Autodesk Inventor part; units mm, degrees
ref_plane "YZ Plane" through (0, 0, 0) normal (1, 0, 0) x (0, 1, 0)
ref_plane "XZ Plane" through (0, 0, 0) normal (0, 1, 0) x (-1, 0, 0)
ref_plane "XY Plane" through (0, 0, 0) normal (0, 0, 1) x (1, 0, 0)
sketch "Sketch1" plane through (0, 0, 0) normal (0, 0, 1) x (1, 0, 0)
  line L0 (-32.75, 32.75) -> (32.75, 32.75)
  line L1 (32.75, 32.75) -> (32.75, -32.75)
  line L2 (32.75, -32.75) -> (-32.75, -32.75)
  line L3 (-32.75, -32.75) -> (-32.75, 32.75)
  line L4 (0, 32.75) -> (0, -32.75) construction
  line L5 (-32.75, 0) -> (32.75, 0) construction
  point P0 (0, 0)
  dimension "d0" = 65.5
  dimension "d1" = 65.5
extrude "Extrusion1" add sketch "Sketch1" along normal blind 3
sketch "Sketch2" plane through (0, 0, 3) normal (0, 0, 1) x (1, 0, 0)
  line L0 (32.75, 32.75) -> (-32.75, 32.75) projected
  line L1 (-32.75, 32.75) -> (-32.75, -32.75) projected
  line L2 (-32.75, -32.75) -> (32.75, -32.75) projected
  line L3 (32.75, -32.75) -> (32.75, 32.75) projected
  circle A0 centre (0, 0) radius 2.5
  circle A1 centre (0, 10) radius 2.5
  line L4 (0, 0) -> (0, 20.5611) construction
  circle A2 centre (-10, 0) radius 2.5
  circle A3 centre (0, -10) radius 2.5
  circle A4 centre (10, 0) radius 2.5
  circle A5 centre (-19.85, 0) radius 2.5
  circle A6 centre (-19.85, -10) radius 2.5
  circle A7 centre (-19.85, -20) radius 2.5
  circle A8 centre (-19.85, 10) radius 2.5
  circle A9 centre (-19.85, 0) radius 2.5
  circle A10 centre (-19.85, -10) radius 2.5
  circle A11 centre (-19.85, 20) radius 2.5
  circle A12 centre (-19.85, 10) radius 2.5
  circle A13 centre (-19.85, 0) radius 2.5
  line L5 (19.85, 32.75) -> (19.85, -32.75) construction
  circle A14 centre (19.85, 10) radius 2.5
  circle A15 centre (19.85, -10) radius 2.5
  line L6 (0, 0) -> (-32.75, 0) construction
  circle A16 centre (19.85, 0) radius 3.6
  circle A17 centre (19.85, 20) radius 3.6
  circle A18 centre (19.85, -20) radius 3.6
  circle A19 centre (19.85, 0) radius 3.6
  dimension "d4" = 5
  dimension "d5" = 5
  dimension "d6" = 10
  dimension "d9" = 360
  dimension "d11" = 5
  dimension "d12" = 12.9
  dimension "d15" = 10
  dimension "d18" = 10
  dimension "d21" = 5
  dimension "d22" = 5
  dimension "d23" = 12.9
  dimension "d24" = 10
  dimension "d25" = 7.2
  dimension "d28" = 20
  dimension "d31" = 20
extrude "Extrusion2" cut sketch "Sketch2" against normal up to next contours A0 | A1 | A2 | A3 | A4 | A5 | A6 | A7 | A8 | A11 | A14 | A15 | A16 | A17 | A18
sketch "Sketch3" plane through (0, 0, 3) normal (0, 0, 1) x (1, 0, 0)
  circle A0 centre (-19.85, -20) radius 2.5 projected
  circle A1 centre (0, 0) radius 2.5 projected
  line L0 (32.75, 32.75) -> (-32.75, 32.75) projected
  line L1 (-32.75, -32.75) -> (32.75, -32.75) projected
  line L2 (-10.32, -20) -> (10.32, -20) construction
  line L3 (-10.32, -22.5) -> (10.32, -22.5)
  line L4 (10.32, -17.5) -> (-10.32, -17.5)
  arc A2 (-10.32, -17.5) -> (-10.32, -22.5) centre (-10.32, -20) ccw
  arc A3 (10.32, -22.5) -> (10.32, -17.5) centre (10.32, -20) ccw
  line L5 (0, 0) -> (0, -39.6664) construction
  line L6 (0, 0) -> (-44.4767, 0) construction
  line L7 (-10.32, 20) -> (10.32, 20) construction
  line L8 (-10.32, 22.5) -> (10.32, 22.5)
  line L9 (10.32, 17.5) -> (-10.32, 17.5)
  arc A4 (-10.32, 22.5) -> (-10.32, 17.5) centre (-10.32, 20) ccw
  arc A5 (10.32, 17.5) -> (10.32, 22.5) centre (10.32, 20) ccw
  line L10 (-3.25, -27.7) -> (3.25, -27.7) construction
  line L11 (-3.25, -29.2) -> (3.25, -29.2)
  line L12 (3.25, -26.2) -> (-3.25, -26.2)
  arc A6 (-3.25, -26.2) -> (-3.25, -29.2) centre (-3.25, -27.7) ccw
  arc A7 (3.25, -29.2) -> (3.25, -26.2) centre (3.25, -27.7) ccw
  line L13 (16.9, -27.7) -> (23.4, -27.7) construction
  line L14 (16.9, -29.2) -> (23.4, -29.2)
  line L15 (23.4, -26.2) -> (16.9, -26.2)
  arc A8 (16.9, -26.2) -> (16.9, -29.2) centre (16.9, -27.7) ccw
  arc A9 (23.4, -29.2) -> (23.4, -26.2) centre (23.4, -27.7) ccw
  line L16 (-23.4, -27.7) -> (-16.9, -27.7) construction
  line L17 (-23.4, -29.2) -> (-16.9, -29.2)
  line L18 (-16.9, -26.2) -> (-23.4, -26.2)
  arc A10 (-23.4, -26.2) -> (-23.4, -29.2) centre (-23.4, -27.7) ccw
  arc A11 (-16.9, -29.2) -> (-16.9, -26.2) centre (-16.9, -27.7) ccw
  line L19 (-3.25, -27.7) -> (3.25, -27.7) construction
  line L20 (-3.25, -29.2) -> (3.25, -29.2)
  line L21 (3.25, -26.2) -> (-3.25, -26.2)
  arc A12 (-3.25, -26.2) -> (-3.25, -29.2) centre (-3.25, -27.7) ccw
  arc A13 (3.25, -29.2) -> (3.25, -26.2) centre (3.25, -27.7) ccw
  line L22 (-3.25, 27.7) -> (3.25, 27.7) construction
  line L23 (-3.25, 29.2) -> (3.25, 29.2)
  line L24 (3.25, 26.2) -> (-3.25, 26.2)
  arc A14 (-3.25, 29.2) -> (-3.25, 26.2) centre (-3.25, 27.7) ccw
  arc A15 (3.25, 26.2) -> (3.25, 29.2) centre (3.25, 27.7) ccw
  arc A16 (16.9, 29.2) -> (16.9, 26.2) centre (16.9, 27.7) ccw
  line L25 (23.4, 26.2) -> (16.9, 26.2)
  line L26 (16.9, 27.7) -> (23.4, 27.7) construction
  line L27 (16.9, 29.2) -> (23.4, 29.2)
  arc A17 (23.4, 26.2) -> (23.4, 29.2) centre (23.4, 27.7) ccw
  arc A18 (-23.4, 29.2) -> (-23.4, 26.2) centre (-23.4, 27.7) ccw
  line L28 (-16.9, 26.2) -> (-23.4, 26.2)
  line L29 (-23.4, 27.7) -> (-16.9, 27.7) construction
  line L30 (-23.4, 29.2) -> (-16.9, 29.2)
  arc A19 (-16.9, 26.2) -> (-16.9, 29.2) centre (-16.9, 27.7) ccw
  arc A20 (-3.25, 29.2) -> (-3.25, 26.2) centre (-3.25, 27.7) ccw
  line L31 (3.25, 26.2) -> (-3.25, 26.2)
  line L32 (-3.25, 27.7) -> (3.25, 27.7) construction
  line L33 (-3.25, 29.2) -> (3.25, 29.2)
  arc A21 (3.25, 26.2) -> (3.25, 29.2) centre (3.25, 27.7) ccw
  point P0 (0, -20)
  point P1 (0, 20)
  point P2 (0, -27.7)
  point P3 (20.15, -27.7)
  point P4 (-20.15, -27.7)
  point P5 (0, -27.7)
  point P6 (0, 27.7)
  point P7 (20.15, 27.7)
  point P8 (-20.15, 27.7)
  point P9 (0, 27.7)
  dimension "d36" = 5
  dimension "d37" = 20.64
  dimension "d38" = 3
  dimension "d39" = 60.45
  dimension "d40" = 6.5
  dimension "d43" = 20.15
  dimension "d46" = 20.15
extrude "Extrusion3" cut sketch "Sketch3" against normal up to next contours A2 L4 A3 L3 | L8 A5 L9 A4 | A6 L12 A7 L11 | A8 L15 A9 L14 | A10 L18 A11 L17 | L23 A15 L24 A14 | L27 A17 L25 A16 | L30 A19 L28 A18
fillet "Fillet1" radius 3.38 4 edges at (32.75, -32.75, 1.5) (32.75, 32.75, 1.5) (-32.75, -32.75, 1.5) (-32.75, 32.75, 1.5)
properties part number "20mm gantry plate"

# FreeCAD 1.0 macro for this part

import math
import FreeCAD as App
import Part
import Sketcher

V = App.Vector


def edges_at(feature, points):
    """Names of the edges that pass closest to the given points."""
    edges = feature.Shape.Edges
    near = lambda p: min(range(len(edges)), key=lambda i: edges[i].distToShape(Part.Vertex(*p))[0])
    return sorted({f"Edge{near(p) + 1}" for p in points})

doc = App.newDocument("Part")
body = doc.addObject("PartDesign::Body", "Body")

# Sketch on XY plane
sketch1 = doc.addObject("Sketcher::SketchObject", "Sketch")
body.addObject(sketch1)
sketch1.AttachmentSupport = (doc.XY_Plane, [""])
sketch1.MapMode = "FlatFace"
sketch1.addGeometry(Part.LineSegment(V(33, 33, 0), V(-33, 33, 0)), False)
sketch1.addGeometry(Part.LineSegment(V(-33, 33, 0), V(-33, -33, 0)), False)
sketch1.addGeometry(Part.LineSegment(V(-33, -33, 0), V(33, -33, 0)), False)
sketch1.addGeometry(Part.LineSegment(V(33, -33, 0), V(33, 33, 0)), False)
sketch1.addConstraint(Sketcher.Constraint("Coincident", 0, 2, 1, 1))
sketch1.addConstraint(Sketcher.Constraint("Coincident", 1, 2, 2, 1))
sketch1.addConstraint(Sketcher.Constraint("Coincident", 2, 2, 3, 1))
sketch1.addConstraint(Sketcher.Constraint("Coincident", 3, 2, 0, 1))
sketch1.addConstraint(Sketcher.Constraint("Horizontal", 0))
sketch1.addConstraint(Sketcher.Constraint("Vertical", 1))
sketch1.addConstraint(Sketcher.Constraint("Horizontal", 2))
sketch1.addConstraint(Sketcher.Constraint("Vertical", 3))
sketch1.addConstraint(Sketcher.Constraint("Symmetric", 0, 2, 2, 2, -1, 1))
sketch1.addConstraint(Sketcher.Constraint("Equal", 2, 1))
sketch1.addConstraint(Sketcher.Constraint("DistanceX", 0, 2, 0, 1, 65.5))
pad1 = doc.addObject("PartDesign::Pad", "Pad")
body.addObject(pad1)
pad1.Profile = sketch1
pad1.Length = 3

# Sketch on XY plane
sketch2 = doc.addObject("Sketcher::SketchObject", "Sketch001")
body.addObject(sketch2)
sketch2.AttachmentSupport = (doc.XY_Plane, [""])
sketch2.MapMode = "FlatFace"
sketch2.AttachmentOffset = App.Placement(V(0, 0, 3), App.Rotation())
sketch2.addGeometry(Part.Circle(V(0, 0, 0), V(0, 0, 1), 2.5), False)
sketch2.addGeometry(Part.Circle(V(0, 10, 0), V(0, 0, 1), 2.5), False)
sketch2.addGeometry(Part.Circle(V(-10, 0, 0), V(0, 0, 1), 2.5), False)
sketch2.addGeometry(Part.Circle(V(0, -10, 0), V(0, 0, 1), 2.5), False)
sketch2.addGeometry(Part.Circle(V(10, 0, 0), V(0, 0, 1), 2.5), False)
sketch2.addGeometry(Part.Circle(V(-19.9, 0, 0), V(0, 0, 1), 2.5), False)
sketch2.addGeometry(Part.Circle(V(-19.9, -10, 0), V(0, 0, 1), 2.5), False)
sketch2.addGeometry(Part.Circle(V(-19.9, -20, 0), V(0, 0, 1), 2.5), False)
sketch2.addGeometry(Part.Circle(V(-19.9, 10, 0), V(0, 0, 1), 2.5), False)
sketch2.addGeometry(Part.Circle(V(-19.9, 20, 0), V(0, 0, 1), 2.5), False)
sketch2.addGeometry(Part.Circle(V(19.9, 10, 0), V(0, 0, 1), 2.5), False)
sketch2.addGeometry(Part.Circle(V(19.9, -10, 0), V(0, 0, 1), 2.5), False)
sketch2.addGeometry(Part.Circle(V(19.9, 0, 0), V(0, 0, 1), 3.6), False)
sketch2.addGeometry(Part.Circle(V(19.9, 20, 0), V(0, 0, 1), 3.6), False)
sketch2.addGeometry(Part.Circle(V(19.9, -20, 0), V(0, 0, 1), 3.6), False)
sketch2.addConstraint(Sketcher.Constraint("Coincident", 0, 3, -1, 1))
sketch2.addConstraint(Sketcher.Constraint("Equal", 0, 1))
sketch2.addConstraint(Sketcher.Constraint("Equal", 1, 2))
sketch2.addConstraint(Sketcher.Constraint("Equal", 2, 3))
sketch2.addConstraint(Sketcher.Constraint("Equal", 3, 4))
sketch2.addConstraint(Sketcher.Constraint("Equal", 4, 5))
sketch2.addConstraint(Sketcher.Constraint("Equal", 5, 6))
sketch2.addConstraint(Sketcher.Constraint("Equal", 6, 7))
sketch2.addConstraint(Sketcher.Constraint("Equal", 7, 8))
sketch2.addConstraint(Sketcher.Constraint("Equal", 8, 9))
sketch2.addConstraint(Sketcher.Constraint("Equal", 9, 10))
sketch2.addConstraint(Sketcher.Constraint("Equal", 10, 11))
sketch2.addConstraint(Sketcher.Constraint("Equal", 12, 13))
sketch2.addConstraint(Sketcher.Constraint("Equal", 13, 14))
sketch2.addConstraint(Sketcher.Constraint("Symmetric", 1, 3, 3, 3, -1, 1))
sketch2.addConstraint(Sketcher.Constraint("Symmetric", 2, 3, 4, 3, -1, 1))
sketch2.addConstraint(Sketcher.Constraint("Symmetric", 6, 3, 10, 3, -1, 1))
sketch2.addConstraint(Sketcher.Constraint("Symmetric", 8, 3, 11, 3, -1, 1))
sketch2.addConstraint(Sketcher.Constraint("Symmetric", 5, 3, 12, 3, -1, 1))
sketch2.addConstraint(Sketcher.Constraint("Symmetric", 7, 3, 13, 3, -1, 1))
sketch2.addConstraint(Sketcher.Constraint("Symmetric", 9, 3, 14, 3, -1, 1))
sketch2.addConstraint(Sketcher.Constraint("Symmetric", 8, 3, 10, 3, -2))
sketch2.addConstraint(Sketcher.Constraint("Symmetric", 9, 3, 13, 3, -2))
sketch2.addConstraint(Sketcher.Constraint("PointOnObject", 1, 3, -2))
sketch2.addConstraint(Sketcher.Constraint("PointOnObject", 2, 3, -1))
sketch2.addConstraint(Sketcher.Constraint("PointOnObject", 5, 3, -1))
sketch2.addConstraint(Sketcher.Constraint("Horizontal", 3, 3, 6, 3))
sketch2.addConstraint(Sketcher.Constraint("Vertical", 5, 3, 6, 3))
sketch2.addConstraint(Sketcher.Constraint("Vertical", 6, 3, 7, 3))
sketch2.addConstraint(Sketcher.Constraint("Diameter", 0, 5.0))
sketch2.addConstraint(Sketcher.Constraint("Diameter", 12, 7.2))
sketch2.addConstraint(Sketcher.Constraint("DistanceY", -1, 1, 1, 3, 10.0))
sketch2.addConstraint(Sketcher.Constraint("DistanceX", 2, 3, -1, 1, 10.0))
sketch2.addConstraint(Sketcher.Constraint("DistanceY", 7, 3, -1, 1, 20.0))
sketch2.addConstraint(Sketcher.Constraint("DistanceX", 5, 3, -1, 1, 19.85))
pocket1 = doc.addObject("PartDesign::Pocket", "Pocket")
body.addObject(pocket1)
pocket1.Profile = sketch2
pocket1.Type = "UpToFirst"

# Sketch on XY plane
sketch3 = doc.addObject("Sketcher::SketchObject", "Sketch002")
body.addObject(sketch3)
sketch3.AttachmentSupport = (doc.XY_Plane, [""])
sketch3.MapMode = "FlatFace"
sketch3.AttachmentOffset = App.Placement(V(0, 0, 3), App.Rotation())
sketch3.addGeometry(Part.ArcOfCircle(Part.Circle(V(-10.3, -20, 0), V(0, 0, 1), 2.5), math.radians(90), math.radians(270)), False)
sketch3.addGeometry(Part.LineSegment(V(-10.3, -22.5, 0), V(10.3, -22.5, 0)), False)
sketch3.addGeometry(Part.ArcOfCircle(Part.Circle(V(10.3, -20, 0), V(0, 0, 1), 2.5), math.radians(-90), math.radians(90)), False)
sketch3.addGeometry(Part.LineSegment(V(10.3, -17.5, 0), V(-10.3, -17.5, 0)), False)
sketch3.addGeometry(Part.LineSegment(V(10.3, 22.5, 0), V(-10.3, 22.5, 0)), False)
sketch3.addGeometry(Part.ArcOfCircle(Part.Circle(V(-10.3, 20, 0), V(0, 0, 1), 2.5), math.radians(90), math.radians(270)), False)
sketch3.addGeometry(Part.LineSegment(V(-10.3, 17.5, 0), V(10.3, 17.5, 0)), False)
sketch3.addGeometry(Part.ArcOfCircle(Part.Circle(V(10.3, 20, 0), V(0, 0, 1), 2.5), math.radians(-90), math.radians(90)), False)
sketch3.addGeometry(Part.ArcOfCircle(Part.Circle(V(-3.2, -27.7, 0), V(0, 0, 1), 1.5), math.radians(90), math.radians(270)), False)
sketch3.addGeometry(Part.LineSegment(V(-3.2, -29.2, 0), V(3.2, -29.2, 0)), False)
sketch3.addGeometry(Part.ArcOfCircle(Part.Circle(V(3.2, -27.7, 0), V(0, 0, 1), 1.5), math.radians(-90), math.radians(90)), False)
sketch3.addGeometry(Part.LineSegment(V(3.2, -26.2, 0), V(-3.2, -26.2, 0)), False)
sketch3.addGeometry(Part.ArcOfCircle(Part.Circle(V(16.9, -27.7, 0), V(0, 0, 1), 1.5), math.radians(90), math.radians(270)), False)
sketch3.addGeometry(Part.LineSegment(V(16.9, -29.2, 0), V(23.4, -29.2, 0)), False)
sketch3.addGeometry(Part.ArcOfCircle(Part.Circle(V(23.4, -27.7, 0), V(0, 0, 1), 1.5), math.radians(-90), math.radians(90)), False)
sketch3.addGeometry(Part.LineSegment(V(23.4, -26.2, 0), V(16.9, -26.2, 0)), False)
sketch3.addGeometry(Part.ArcOfCircle(Part.Circle(V(-23.4, -27.7, 0), V(0, 0, 1), 1.5), math.radians(90), math.radians(270)), False)
sketch3.addGeometry(Part.LineSegment(V(-23.4, -29.2, 0), V(-16.9, -29.2, 0)), False)
sketch3.addGeometry(Part.ArcOfCircle(Part.Circle(V(-16.9, -27.7, 0), V(0, 0, 1), 1.5), math.radians(-90), math.radians(90)), False)
sketch3.addGeometry(Part.LineSegment(V(-16.9, -26.2, 0), V(-23.4, -26.2, 0)), False)
sketch3.addGeometry(Part.LineSegment(V(3.2, 29.2, 0), V(-3.2, 29.2, 0)), False)
sketch3.addGeometry(Part.ArcOfCircle(Part.Circle(V(-3.2, 27.7, 0), V(0, 0, 1), 1.5), math.radians(90), math.radians(270)), False)
sketch3.addGeometry(Part.LineSegment(V(-3.2, 26.2, 0), V(3.2, 26.2, 0)), False)
sketch3.addGeometry(Part.ArcOfCircle(Part.Circle(V(3.2, 27.7, 0), V(0, 0, 1), 1.5), math.radians(-90), math.radians(90)), False)
sketch3.addGeometry(Part.LineSegment(V(23.4, 29.2, 0), V(16.9, 29.2, 0)), False)
sketch3.addGeometry(Part.ArcOfCircle(Part.Circle(V(16.9, 27.7, 0), V(0, 0, 1), 1.5), math.radians(90), math.radians(270)), False)
sketch3.addGeometry(Part.LineSegment(V(16.9, 26.2, 0), V(23.4, 26.2, 0)), False)
sketch3.addGeometry(Part.ArcOfCircle(Part.Circle(V(23.4, 27.7, 0), V(0, 0, 1), 1.5), math.radians(-90), math.radians(90)), False)
sketch3.addGeometry(Part.LineSegment(V(-16.9, 29.2, 0), V(-23.4, 29.2, 0)), False)
sketch3.addGeometry(Part.ArcOfCircle(Part.Circle(V(-23.4, 27.7, 0), V(0, 0, 1), 1.5), math.radians(90), math.radians(270)), False)
sketch3.addGeometry(Part.LineSegment(V(-23.4, 26.2, 0), V(-16.9, 26.2, 0)), False)
sketch3.addGeometry(Part.ArcOfCircle(Part.Circle(V(-16.9, 27.7, 0), V(0, 0, 1), 1.5), math.radians(-90), math.radians(90)), False)
sketch3.addConstraint(Sketcher.Constraint("Tangent", 0, 2, 1, 1))
sketch3.addConstraint(Sketcher.Constraint("Tangent", 1, 2, 2, 1))
sketch3.addConstraint(Sketcher.Constraint("Tangent", 2, 2, 3, 1))
sketch3.addConstraint(Sketcher.Constraint("Tangent", 3, 2, 0, 1))
sketch3.addConstraint(Sketcher.Constraint("Tangent", 4, 2, 5, 1))
sketch3.addConstraint(Sketcher.Constraint("Tangent", 5, 2, 6, 1))
sketch3.addConstraint(Sketcher.Constraint("Tangent", 6, 2, 7, 1))
sketch3.addConstraint(Sketcher.Constraint("Tangent", 7, 2, 4, 1))
sketch3.addConstraint(Sketcher.Constraint("Tangent", 8, 2, 9, 1))
sketch3.addConstraint(Sketcher.Constraint("Tangent", 9, 2, 10, 1))
sketch3.addConstraint(Sketcher.Constraint("Tangent", 10, 2, 11, 1))
sketch3.addConstraint(Sketcher.Constraint("Tangent", 11, 2, 8, 1))
sketch3.addConstraint(Sketcher.Constraint("Tangent", 12, 2, 13, 1))
sketch3.addConstraint(Sketcher.Constraint("Tangent", 13, 2, 14, 1))
sketch3.addConstraint(Sketcher.Constraint("Tangent", 14, 2, 15, 1))
sketch3.addConstraint(Sketcher.Constraint("Tangent", 15, 2, 12, 1))
sketch3.addConstraint(Sketcher.Constraint("Tangent", 16, 2, 17, 1))
sketch3.addConstraint(Sketcher.Constraint("Tangent", 17, 2, 18, 1))
sketch3.addConstraint(Sketcher.Constraint("Tangent", 18, 2, 19, 1))
sketch3.addConstraint(Sketcher.Constraint("Tangent", 19, 2, 16, 1))
sketch3.addConstraint(Sketcher.Constraint("Tangent", 20, 2, 21, 1))
sketch3.addConstraint(Sketcher.Constraint("Tangent", 21, 2, 22, 1))
sketch3.addConstraint(Sketcher.Constraint("Tangent", 22, 2, 23, 1))
sketch3.addConstraint(Sketcher.Constraint("Tangent", 23, 2, 20, 1))
sketch3.addConstraint(Sketcher.Constraint("Tangent", 24, 2, 25, 1))
sketch3.addConstraint(Sketcher.Constraint("Tangent", 25, 2, 26, 1))
sketch3.addConstraint(Sketcher.Constraint("Tangent", 26, 2, 27, 1))
sketch3.addConstraint(Sketcher.Constraint("Tangent", 27, 2, 24, 1))
sketch3.addConstraint(Sketcher.Constraint("Tangent", 28, 2, 29, 1))
sketch3.addConstraint(Sketcher.Constraint("Tangent", 29, 2, 30, 1))
sketch3.addConstraint(Sketcher.Constraint("Tangent", 30, 2, 31, 1))
sketch3.addConstraint(Sketcher.Constraint("Tangent", 31, 2, 28, 1))
sketch3.addConstraint(Sketcher.Constraint("Horizontal", 1))
sketch3.addConstraint(Sketcher.Constraint("Horizontal", 3))
sketch3.addConstraint(Sketcher.Constraint("Horizontal", 4))
sketch3.addConstraint(Sketcher.Constraint("Horizontal", 6))
sketch3.addConstraint(Sketcher.Constraint("Horizontal", 9))
sketch3.addConstraint(Sketcher.Constraint("Horizontal", 11))
sketch3.addConstraint(Sketcher.Constraint("Horizontal", 13))
sketch3.addConstraint(Sketcher.Constraint("Horizontal", 15))
sketch3.addConstraint(Sketcher.Constraint("Horizontal", 17))
sketch3.addConstraint(Sketcher.Constraint("Horizontal", 19))
sketch3.addConstraint(Sketcher.Constraint("Horizontal", 20))
sketch3.addConstraint(Sketcher.Constraint("Horizontal", 22))
sketch3.addConstraint(Sketcher.Constraint("Horizontal", 24))
sketch3.addConstraint(Sketcher.Constraint("Horizontal", 26))
sketch3.addConstraint(Sketcher.Constraint("Horizontal", 28))
sketch3.addConstraint(Sketcher.Constraint("Horizontal", 30))
sketch3.addConstraint(Sketcher.Constraint("Equal", 2, 5))
sketch3.addConstraint(Sketcher.Constraint("Equal", 10, 12))
sketch3.addConstraint(Sketcher.Constraint("Equal", 14, 16))
sketch3.addConstraint(Sketcher.Constraint("Equal", 18, 21))
sketch3.addConstraint(Sketcher.Constraint("Equal", 23, 25))
sketch3.addConstraint(Sketcher.Constraint("Equal", 27, 29))
sketch3.addConstraint(Sketcher.Constraint("Symmetric", 2, 3, 5, 3, -1, 1))
sketch3.addConstraint(Sketcher.Constraint("Symmetric", 10, 3, 21, 3, -1, 1))
sketch3.addConstraint(Sketcher.Constraint("Symmetric", 18, 3, 25, 3, -1, 1))
sketch3.addConstraint(Sketcher.Constraint("Symmetric", 14, 3, 29, 3, -1, 1))
sketch3.addConstraint(Sketcher.Constraint("Symmetric", 14, 3, 16, 3, -2))
sketch3.addConstraint(Sketcher.Constraint("Horizontal", 10, 3, 12, 3))
sketch3.addConstraint(Sketcher.Constraint("Vertical", 0, 3, 5, 3))
sketch3.addConstraint(Sketcher.Constraint("Vertical", 2, 3, 7, 3))
sketch3.addConstraint(Sketcher.Constraint("Vertical", 8, 3, 21, 3))
sketch3.addConstraint(Sketcher.Constraint("Vertical", 10, 3, 23, 3))
sketch3.addConstraint(Sketcher.Constraint("Vertical", 12, 3, 25, 3))
sketch3.addConstraint(Sketcher.Constraint("Vertical", 14, 3, 27, 3))
sketch3.addConstraint(Sketcher.Constraint("Vertical", 18, 3, 31, 3))
sketch3.addConstraint(Sketcher.Constraint("Equal", 11, 13))
sketch3.addConstraint(Sketcher.Constraint("Radius", 0, 2.5))
sketch3.addConstraint(Sketcher.Constraint("Radius", 8, 1.5))
sketch3.addConstraint(Sketcher.Constraint("DistanceX", 9, 1, 9, 2, 6.5))
sketch3.addConstraint(Sketcher.Constraint("DistanceX", 1, 1, 1, 2, 20.64))
sketch3.addConstraint(Sketcher.Constraint("DistanceX", 8, 3, 12, 3, 20.15))
sketch3.addConstraint(Sketcher.Constraint("DistanceY", 0, 3, -1, 1, 20.0))
sketch3.addConstraint(Sketcher.Constraint("DistanceY", 8, 3, -1, 1, 27.7))
pocket2 = doc.addObject("PartDesign::Pocket", "Pocket001")
body.addObject(pocket2)
pocket2.Profile = sketch3
pocket2.Length = 3
doc.recompute()

fillet = doc.addObject("PartDesign::Fillet", "Fillet")
body.addObject(fillet)
fillet.Base = (pocket2, edges_at(pocket2, [
    (32.75, -32.75, 1.5),
    (32.75, 32.75, 1.5),
    (-32.75, -32.75, 1.5),
    (-32.75, 32.75, 1.5),
]))
fillet.Radius = 3.38

doc.recompute()
